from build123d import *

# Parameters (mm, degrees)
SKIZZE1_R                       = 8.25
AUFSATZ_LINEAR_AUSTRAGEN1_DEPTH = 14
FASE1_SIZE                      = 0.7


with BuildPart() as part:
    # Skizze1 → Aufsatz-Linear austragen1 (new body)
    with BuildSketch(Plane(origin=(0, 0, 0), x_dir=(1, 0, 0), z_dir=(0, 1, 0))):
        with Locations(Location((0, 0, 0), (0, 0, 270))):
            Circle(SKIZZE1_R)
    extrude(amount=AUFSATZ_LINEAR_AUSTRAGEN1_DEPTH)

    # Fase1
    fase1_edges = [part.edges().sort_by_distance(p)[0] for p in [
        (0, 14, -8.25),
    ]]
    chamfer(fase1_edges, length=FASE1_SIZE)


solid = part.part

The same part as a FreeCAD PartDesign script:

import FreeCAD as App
import Part
import Sketcher

V = App.Vector
Q = App.Units.Quantity


def edges_at(feature, points):
    """Names of the edges that pass closest to the given points."""
    edges = feature.Shape.Edges
    near = lambda p: min(range(len(edges)), key=lambda i: edges[i].distToShape(Part.Vertex(*p))[0])
    return sorted({f"Edge{near(p) + 1}" for p in points})

doc = App.newDocument("Part")
params = doc.addObject("Spreadsheet::Sheet", "Params")
for row, (alias, value) in enumerate([
    ("sketch1_diameter", "16.5 mm"),
    ("pad1_length", "14 mm"),
    ("chamfer_size", "0.7 mm"),
], start=1):
    params.set(f"A{row}", alias)
    params.set(f"B{row}", "=" + value)
    params.setAlias(f"B{row}", alias)

body = doc.addObject("PartDesign::Body", "Body")

sketch1 = body.newObject("Sketcher::SketchObject", "Sketch")
sketch1.AttachmentSupport = (doc.getObject("XZ_Plane"), [""])
sketch1.MapMode = "FlatFace"
sketch1.addGeometry(Part.Circle(V(0, 0, 0), V(0, 0, 1), 8), False)
sketch1.addConstraint(Sketcher.Constraint("Coincident", 0, 3, -1, 1))
sketch1.addConstraint(Sketcher.Constraint("Diameter", 0, Q("16.5 mm")))
sketch1.setExpression("Constraints[1]", "Params.sketch1_diameter")
pad1 = body.newObject("PartDesign::Pad", "Pad")
pad1.Profile = sketch1
pad1.setExpression("Length", "Params.pad1_length")
pad1.Reversed = True
doc.recompute()

chamfer = body.newObject("PartDesign::Chamfer", "Chamfer")
chamfer.Base = (pad1, edges_at(pad1, [(0, 14, -8.25)]))
chamfer.setExpression("Size", "Params.chamfer_size")

doc.recompute()
